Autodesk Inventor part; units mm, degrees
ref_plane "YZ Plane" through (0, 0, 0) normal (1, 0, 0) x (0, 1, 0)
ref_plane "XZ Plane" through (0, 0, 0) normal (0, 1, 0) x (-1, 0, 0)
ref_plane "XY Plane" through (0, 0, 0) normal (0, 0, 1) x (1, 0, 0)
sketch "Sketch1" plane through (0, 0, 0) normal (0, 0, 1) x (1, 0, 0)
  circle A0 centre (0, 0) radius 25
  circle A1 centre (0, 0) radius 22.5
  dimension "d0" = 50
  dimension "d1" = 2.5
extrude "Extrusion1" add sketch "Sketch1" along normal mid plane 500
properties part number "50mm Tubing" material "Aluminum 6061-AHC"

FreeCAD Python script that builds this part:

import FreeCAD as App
import Part
import Sketcher

doc = App.newDocument("Part")
body = doc.addObject("PartDesign::Body", "Body")

sketch1 = body.newObject("Sketcher::SketchObject", "Sketch")
sketch1.AttachmentSupport = (doc.getObject("XY_Plane"), [""])
sketch1.MapMode = "FlatFace"
sketch1.addGeometry([
    Part.Circle(App.Vector(0, 0, 0), App.Vector(0, 0, 1), 25),
    Part.Circle(App.Vector(0, 0, 0), App.Vector(0, 0, 1), 22),
], False)
sketch1.addConstraint([
    Sketcher.Constraint("Coincident", 0, 3, -1, 1),
    Sketcher.Constraint("Coincident", 1, 3, -1, 1),
    Sketcher.Constraint("Diameter", 0, 50.0),
    Sketcher.Constraint("Diameter", 1, 45.0),
])
pad1 = body.newObject("PartDesign::Pad", "Pad")
pad1.Profile = sketch1
pad1.Length = 500
pad1.Midplane = True

doc.recompute()
